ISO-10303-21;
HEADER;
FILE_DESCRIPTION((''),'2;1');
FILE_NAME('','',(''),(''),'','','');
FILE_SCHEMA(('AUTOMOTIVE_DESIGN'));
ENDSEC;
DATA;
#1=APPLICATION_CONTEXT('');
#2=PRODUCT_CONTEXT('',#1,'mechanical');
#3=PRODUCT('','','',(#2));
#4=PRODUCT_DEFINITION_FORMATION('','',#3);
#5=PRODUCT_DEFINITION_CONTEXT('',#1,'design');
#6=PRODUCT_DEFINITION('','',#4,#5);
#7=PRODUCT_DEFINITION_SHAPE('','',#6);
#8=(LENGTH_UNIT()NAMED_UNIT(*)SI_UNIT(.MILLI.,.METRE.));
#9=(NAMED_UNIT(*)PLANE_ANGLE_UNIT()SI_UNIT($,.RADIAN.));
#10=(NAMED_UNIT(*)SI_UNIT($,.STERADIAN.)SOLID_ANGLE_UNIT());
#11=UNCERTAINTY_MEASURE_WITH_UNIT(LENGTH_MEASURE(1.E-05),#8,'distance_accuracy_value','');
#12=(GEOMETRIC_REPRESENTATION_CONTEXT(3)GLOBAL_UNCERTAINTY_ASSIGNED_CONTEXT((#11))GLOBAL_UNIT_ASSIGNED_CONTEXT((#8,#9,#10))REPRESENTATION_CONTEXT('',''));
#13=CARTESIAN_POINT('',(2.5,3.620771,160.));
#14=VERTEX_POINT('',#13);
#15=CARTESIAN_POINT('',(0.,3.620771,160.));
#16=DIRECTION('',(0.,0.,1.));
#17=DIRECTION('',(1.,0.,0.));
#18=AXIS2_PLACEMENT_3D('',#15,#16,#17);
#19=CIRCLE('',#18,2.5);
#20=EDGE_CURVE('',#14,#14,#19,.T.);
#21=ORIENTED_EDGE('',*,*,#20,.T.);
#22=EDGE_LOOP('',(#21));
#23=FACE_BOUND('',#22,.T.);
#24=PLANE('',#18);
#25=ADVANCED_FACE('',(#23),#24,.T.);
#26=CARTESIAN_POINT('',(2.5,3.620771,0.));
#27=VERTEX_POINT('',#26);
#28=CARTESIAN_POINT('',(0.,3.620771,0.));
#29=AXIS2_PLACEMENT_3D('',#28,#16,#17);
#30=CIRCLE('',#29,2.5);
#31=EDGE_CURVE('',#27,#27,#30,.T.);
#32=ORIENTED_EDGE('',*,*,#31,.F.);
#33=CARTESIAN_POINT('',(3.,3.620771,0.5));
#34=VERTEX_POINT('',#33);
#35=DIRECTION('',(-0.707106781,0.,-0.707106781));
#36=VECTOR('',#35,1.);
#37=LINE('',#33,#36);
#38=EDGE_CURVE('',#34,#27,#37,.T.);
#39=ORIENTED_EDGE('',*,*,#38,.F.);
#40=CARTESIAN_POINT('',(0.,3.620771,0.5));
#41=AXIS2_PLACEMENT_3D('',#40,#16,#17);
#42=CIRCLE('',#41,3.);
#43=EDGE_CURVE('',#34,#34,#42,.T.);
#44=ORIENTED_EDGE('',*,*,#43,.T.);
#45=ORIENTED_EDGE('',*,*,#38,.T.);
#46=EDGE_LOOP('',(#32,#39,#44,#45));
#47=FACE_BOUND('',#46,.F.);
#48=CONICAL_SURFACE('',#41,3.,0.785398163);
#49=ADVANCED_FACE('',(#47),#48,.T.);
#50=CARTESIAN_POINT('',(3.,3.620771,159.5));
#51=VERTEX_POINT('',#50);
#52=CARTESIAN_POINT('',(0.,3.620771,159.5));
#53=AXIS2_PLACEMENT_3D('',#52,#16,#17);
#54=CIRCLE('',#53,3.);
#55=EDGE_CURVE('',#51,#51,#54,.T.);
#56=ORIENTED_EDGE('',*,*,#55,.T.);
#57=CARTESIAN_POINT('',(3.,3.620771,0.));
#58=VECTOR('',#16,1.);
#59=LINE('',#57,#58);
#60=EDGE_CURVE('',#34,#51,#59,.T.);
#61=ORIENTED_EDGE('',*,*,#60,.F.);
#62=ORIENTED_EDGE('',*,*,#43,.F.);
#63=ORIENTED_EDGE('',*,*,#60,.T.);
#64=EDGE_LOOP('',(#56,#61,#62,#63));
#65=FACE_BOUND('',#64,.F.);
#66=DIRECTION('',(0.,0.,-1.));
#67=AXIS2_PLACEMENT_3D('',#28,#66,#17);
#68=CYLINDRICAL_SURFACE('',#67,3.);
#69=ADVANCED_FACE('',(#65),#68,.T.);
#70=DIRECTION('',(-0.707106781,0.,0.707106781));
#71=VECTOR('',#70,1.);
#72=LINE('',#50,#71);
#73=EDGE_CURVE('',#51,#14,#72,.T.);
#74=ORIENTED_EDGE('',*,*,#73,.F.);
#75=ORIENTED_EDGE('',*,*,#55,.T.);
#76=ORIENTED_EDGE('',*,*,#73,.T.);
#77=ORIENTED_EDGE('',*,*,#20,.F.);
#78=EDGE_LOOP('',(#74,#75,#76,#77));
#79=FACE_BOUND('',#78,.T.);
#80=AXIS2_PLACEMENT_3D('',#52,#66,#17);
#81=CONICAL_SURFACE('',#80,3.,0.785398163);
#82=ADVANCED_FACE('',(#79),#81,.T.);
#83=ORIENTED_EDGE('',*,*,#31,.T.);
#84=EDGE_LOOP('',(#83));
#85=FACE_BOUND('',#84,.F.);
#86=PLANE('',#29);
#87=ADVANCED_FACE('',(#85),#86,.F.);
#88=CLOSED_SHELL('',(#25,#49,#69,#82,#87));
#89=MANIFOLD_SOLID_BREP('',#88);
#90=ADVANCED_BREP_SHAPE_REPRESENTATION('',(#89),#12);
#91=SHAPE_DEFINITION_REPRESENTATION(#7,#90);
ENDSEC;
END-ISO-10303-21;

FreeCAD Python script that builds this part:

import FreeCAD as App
import Part
import Sketcher

V = App.Vector


def edges_at(feature, points):
    """Names of the edges that pass closest to the given points."""
    edges = feature.Shape.Edges
    near = lambda p: min(range(len(edges)), key=lambda i: edges[i].distToShape(Part.Vertex(*p))[0])
    return sorted({f"Edge{near(p) + 1}" for p in points})

doc = App.newDocument("Part")
body = doc.addObject("PartDesign::Body", "Body")

sketch1 = body.newObject("Sketcher::SketchObject", "Sketch")
sketch1.AttachmentSupport = (doc.getObject("XY_Plane"), [""])
sketch1.MapMode = "FlatFace"
sketch1.addGeometry(Part.Circle(V(0, 3.6, 0), V(0, 0, 1), 3), False)
sketch1.addConstraint([
    Sketcher.Constraint("PointOnObject", 0, 3, -2),
    Sketcher.Constraint("Diameter", 0, 6.0),
    Sketcher.Constraint("DistanceY", -1, 1, 0, 3, 3.620771),
])
pad1 = body.newObject("PartDesign::Pad", "Pad")
pad1.Profile = sketch1
pad1.Length = 160
doc.recompute()

chamfer = body.newObject("PartDesign::Chamfer", "Chamfer")
chamfer.Base = (pad1, edges_at(pad1, [(-3, 3.621, 160)]))
chamfer.Size = 0.5
doc.recompute()

chamfer2 = body.newObject("PartDesign::Chamfer", "Chamfer001")
chamfer2.Base = (chamfer, edges_at(chamfer, [(-3, 3.621, 0)]))
chamfer2.Size = 0.5

doc.recompute()
